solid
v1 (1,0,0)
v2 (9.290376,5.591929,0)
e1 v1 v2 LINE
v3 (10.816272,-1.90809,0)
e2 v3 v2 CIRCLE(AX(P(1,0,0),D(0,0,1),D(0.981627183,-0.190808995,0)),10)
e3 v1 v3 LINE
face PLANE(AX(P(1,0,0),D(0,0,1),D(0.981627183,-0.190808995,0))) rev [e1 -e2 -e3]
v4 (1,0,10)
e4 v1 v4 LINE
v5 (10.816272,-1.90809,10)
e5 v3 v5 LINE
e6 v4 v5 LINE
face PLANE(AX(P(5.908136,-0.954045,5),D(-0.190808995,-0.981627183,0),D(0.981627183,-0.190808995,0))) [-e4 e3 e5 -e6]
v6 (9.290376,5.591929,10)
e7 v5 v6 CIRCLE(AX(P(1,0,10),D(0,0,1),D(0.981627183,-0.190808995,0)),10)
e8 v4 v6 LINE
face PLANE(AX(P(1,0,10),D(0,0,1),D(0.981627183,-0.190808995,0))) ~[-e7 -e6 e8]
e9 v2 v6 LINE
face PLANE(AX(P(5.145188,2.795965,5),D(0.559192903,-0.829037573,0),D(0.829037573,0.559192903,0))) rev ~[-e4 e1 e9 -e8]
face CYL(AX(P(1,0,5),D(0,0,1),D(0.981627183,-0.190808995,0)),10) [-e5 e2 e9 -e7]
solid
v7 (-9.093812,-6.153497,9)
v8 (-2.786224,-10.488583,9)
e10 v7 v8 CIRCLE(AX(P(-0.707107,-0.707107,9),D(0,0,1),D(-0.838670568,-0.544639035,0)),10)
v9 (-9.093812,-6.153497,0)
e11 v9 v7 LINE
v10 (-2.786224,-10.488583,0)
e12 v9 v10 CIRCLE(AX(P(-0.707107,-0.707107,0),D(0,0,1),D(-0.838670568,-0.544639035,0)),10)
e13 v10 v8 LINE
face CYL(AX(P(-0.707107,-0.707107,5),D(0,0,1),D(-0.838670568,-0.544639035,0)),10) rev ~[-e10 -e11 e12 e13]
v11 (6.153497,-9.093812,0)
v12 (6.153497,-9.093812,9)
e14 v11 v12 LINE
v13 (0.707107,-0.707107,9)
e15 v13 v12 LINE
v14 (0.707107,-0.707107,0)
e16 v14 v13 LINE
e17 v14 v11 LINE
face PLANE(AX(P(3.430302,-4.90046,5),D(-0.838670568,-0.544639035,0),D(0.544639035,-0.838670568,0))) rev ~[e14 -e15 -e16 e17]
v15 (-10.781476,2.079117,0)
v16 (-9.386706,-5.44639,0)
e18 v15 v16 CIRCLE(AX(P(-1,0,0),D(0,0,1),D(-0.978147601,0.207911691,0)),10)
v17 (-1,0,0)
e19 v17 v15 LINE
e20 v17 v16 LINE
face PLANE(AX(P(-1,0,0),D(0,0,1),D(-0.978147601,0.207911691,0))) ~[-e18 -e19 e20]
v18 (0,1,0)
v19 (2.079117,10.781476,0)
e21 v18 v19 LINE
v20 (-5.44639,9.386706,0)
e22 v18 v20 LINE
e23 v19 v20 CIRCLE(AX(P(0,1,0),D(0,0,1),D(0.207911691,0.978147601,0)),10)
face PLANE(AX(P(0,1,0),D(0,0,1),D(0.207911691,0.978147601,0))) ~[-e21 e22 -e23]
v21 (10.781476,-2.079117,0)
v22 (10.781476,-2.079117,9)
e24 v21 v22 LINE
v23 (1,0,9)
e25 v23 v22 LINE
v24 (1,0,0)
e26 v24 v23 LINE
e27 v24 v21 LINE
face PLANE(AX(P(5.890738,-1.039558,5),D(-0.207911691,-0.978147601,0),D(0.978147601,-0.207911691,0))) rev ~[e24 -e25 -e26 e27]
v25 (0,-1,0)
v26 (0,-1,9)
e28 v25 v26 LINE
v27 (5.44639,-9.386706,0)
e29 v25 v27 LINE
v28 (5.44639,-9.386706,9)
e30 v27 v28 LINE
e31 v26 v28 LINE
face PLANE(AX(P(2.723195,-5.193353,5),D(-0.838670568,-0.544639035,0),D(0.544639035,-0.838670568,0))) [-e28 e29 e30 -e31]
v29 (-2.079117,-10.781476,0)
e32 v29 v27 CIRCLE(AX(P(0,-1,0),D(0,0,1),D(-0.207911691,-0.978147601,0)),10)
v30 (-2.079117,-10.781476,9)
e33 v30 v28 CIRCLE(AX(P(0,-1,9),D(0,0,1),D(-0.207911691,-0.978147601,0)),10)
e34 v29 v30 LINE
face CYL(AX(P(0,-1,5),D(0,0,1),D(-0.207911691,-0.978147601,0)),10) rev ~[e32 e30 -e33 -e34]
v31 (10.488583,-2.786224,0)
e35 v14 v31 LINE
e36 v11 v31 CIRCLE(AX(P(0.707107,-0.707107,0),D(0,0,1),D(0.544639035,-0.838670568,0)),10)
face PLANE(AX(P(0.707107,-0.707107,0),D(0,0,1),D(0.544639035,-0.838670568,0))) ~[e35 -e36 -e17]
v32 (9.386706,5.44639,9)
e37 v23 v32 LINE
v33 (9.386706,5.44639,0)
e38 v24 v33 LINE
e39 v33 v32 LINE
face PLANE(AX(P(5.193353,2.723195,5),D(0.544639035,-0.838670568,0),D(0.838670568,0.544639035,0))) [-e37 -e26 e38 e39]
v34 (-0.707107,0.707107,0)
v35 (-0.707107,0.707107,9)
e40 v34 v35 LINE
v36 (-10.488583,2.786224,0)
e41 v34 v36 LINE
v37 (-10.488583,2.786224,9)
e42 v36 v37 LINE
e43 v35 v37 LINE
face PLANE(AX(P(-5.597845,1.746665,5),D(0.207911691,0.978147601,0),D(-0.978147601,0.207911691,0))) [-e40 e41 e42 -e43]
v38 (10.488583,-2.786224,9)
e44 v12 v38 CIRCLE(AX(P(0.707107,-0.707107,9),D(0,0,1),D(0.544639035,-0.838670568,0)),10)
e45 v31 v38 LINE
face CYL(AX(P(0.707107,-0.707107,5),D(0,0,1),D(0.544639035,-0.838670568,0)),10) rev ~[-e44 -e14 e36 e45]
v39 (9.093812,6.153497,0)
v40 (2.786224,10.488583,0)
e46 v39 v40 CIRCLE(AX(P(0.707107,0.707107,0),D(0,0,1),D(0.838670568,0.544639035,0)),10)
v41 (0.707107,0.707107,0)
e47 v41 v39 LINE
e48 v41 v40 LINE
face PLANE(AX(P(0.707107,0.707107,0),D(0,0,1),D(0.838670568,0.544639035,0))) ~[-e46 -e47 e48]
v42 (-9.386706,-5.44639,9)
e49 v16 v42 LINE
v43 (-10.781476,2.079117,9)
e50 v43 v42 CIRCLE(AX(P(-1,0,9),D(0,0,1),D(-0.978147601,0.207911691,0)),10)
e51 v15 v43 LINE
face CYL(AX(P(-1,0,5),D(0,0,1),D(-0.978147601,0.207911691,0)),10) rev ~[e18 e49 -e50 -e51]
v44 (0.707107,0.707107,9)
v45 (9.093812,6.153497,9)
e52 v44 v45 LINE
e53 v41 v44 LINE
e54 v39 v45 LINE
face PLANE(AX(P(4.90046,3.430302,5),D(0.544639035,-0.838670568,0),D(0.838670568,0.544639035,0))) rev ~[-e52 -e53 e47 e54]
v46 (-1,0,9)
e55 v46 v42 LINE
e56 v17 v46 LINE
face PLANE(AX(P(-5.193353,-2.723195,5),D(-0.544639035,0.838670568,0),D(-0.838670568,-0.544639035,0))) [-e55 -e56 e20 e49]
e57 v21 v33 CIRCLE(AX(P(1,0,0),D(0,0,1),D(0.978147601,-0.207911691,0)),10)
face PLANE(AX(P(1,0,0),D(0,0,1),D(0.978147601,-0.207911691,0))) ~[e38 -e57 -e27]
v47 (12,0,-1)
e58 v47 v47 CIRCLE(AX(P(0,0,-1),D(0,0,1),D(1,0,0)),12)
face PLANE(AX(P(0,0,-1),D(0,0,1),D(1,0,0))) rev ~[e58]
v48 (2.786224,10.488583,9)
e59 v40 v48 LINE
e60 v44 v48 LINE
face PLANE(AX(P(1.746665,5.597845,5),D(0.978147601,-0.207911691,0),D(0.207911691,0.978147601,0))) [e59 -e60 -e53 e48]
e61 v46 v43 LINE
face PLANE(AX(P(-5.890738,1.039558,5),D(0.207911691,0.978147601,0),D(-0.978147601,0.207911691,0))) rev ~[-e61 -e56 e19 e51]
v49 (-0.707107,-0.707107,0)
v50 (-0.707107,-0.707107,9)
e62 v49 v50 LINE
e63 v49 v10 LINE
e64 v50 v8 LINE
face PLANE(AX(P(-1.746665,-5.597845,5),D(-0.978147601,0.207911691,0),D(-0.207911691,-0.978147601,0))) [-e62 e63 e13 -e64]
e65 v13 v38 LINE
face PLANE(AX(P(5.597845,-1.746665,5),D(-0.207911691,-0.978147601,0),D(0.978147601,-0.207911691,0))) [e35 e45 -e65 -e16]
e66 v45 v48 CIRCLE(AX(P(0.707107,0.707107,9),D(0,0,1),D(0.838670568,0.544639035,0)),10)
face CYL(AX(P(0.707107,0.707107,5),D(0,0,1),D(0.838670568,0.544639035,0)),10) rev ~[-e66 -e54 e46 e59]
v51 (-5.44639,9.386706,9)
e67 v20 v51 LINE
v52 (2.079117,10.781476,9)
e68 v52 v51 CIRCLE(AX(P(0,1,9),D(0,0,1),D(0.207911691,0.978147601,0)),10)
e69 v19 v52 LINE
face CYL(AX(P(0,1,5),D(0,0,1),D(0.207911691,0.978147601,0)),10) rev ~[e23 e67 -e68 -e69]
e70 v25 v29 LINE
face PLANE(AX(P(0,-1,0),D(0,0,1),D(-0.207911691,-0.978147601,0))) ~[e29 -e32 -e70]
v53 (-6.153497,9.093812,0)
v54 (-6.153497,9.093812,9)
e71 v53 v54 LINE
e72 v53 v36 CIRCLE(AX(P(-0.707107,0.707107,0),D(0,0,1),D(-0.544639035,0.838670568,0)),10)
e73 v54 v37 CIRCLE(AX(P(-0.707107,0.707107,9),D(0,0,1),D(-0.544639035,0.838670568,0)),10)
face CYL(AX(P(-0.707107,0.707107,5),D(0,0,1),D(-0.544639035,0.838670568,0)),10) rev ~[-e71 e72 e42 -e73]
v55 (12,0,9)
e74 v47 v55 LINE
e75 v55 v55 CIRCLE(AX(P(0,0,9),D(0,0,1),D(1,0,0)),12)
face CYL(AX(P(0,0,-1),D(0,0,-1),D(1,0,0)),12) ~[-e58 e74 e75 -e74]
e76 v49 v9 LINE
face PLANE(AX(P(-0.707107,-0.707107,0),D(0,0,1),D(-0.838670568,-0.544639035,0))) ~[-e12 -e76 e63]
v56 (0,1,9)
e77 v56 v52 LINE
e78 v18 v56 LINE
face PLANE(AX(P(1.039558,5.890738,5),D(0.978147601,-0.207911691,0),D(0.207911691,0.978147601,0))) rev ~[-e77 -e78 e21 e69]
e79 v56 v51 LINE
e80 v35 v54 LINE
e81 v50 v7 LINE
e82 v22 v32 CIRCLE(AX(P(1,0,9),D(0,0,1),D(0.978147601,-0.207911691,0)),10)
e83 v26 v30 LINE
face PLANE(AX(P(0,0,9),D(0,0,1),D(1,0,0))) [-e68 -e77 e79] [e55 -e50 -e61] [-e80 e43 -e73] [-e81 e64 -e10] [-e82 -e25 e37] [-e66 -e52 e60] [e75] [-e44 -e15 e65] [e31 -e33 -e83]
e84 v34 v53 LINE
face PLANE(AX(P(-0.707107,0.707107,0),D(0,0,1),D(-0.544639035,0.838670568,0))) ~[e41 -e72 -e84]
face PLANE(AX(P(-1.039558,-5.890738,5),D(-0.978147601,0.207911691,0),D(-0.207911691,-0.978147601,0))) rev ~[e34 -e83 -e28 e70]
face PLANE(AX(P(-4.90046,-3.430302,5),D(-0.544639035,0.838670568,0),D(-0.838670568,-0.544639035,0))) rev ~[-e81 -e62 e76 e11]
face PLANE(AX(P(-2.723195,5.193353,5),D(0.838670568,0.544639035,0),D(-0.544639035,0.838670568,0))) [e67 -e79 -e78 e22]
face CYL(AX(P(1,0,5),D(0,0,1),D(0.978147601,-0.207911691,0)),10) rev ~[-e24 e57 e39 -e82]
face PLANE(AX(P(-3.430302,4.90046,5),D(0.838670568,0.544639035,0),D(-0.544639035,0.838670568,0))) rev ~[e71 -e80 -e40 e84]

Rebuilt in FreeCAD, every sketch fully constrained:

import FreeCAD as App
import Part
import Sketcher
from FreeCAD import Vector
Q = App.Units.Quantity

doc = App.newDocument("Part")
params = doc.addObject("Spreadsheet::Sheet", "Params")
for row, (alias, value) in enumerate([
    ("sketch1_width", "10 mm"),
    ("revolution_angle", "45 deg"),
    ("sketch2_diameter", "24 mm"),
    ("pad1_length", "10 mm"),
    ("sketch3_width", "10 mm"),
    ("revolution2_angle", "45 deg"),
], start=1):
    params.set(f"A{row}", alias)
    params.set(f"B{row}", "=" + value)
    params.setAlias(f"B{row}", alias)

body = doc.addObject("PartDesign::Body", "Body")

# Sketch on XZ plane
sketch1 = body.newObject("Sketcher::SketchObject", "Sketch")
sketch1.AttachmentSupport = (doc.getObject("XZ_Plane"), [""])
sketch1.MapMode = "FlatFace"
sketch1.addGeometry(Part.LineSegment(Vector(0, 10, 0), Vector(0, 0, 0)), False)
sketch1.addGeometry(Part.LineSegment(Vector(0, 0, 0), Vector(10, 0, 0)), False)
sketch1.addGeometry(Part.LineSegment(Vector(10, 0, 0), Vector(10, 10, 0)), False)
sketch1.addGeometry(Part.LineSegment(Vector(10, 10, 0), Vector(0, 10, 0)), False)
sketch1.addConstraint(Sketcher.Constraint("Coincident", 0, 2, 1, 1))
sketch1.addConstraint(Sketcher.Constraint("Coincident", 1, 2, 2, 1))
sketch1.addConstraint(Sketcher.Constraint("Coincident", 2, 2, 3, 1))
sketch1.addConstraint(Sketcher.Constraint("Coincident", 3, 2, 0, 1))
sketch1.addConstraint(Sketcher.Constraint("Vertical", 0))
sketch1.addConstraint(Sketcher.Constraint("Horizontal", 1))
sketch1.addConstraint(Sketcher.Constraint("Vertical", 2))
sketch1.addConstraint(Sketcher.Constraint("Horizontal", 3))
sketch1.addConstraint(Sketcher.Constraint("Coincident", 0, 2, -1, 1))
sketch1.addConstraint(Sketcher.Constraint("Equal", 3, 0))
sketch1.addConstraint(Sketcher.Constraint("DistanceX", 1, 1, 1, 2, Q("10 mm")))
sketch1.setExpression("Constraints[10]", "Params.sketch1_width")
revolution = body.newObject("PartDesign::Revolution", "Revolution")
revolution.Profile = sketch1
revolution.ReferenceAxis = (sketch1, ["V_Axis"])
revolution.setExpression("Angle", "Params.revolution_angle")
body2 = doc.addObject("PartDesign::Body", "Body001")
doc.recompute()

body.Placement = App.Placement(Vector(1, 0, 0), App.Rotation(Vector(0, 0, 1), 348))
boolean = body2.newObject("PartDesign::Boolean", "Boolean")
boolean.Type = "Fuse"
boolean.addObjects([body])
body3 = doc.addObject("PartDesign::Body", "Body002")
body3.AllowCompound = True
doc.recompute()

body3.BaseFeature = body2
doc.recompute()

body4 = doc.addObject("PartDesign::Body", "Body003")
body4.BaseFeature = body2
body4.Placement = App.Placement(Vector(0, 0, 0), App.Rotation(Vector(0, 0, 1), 45))
boolean2 = body3.newObject("PartDesign::Boolean", "Boolean001")
boolean2.Type = "Fuse"
boolean2.addObjects([body4])
doc.recompute()

body5 = doc.addObject("PartDesign::Body", "Body004")
body5.BaseFeature = body2
body5.Placement = App.Placement(Vector(0, 0, 0), App.Rotation(Vector(0, 0, 1), 90))
boolean3 = body3.newObject("PartDesign::Boolean", "Boolean002")
boolean3.Type = "Fuse"
boolean3.addObjects([body5])
doc.recompute()

body6 = doc.addObject("PartDesign::Body", "Body005")
body6.BaseFeature = body2
body6.Placement = App.Placement(Vector(0, 0, 0), App.Rotation(Vector(0, 0, 1), 135))
boolean4 = body3.newObject("PartDesign::Boolean", "Boolean003")
boolean4.Type = "Fuse"
boolean4.addObjects([body6])
doc.recompute()

body7 = doc.addObject("PartDesign::Body", "Body006")
body7.BaseFeature = body2
body7.Placement = App.Placement(Vector(0, 0, 0), App.Rotation(Vector(0, 0, 1), 180))
boolean5 = body3.newObject("PartDesign::Boolean", "Boolean004")
boolean5.Type = "Fuse"
boolean5.addObjects([body7])
doc.recompute()

body8 = doc.addObject("PartDesign::Body", "Body007")
body8.BaseFeature = body2
body8.Placement = App.Placement(Vector(0, 0, 0), App.Rotation(Vector(0, 0, 1), 225))
boolean6 = body3.newObject("PartDesign::Boolean", "Boolean005")
boolean6.Type = "Fuse"
boolean6.addObjects([body8])
doc.recompute()

body9 = doc.addObject("PartDesign::Body", "Body008")
body9.BaseFeature = body2
body9.Placement = App.Placement(Vector(0, 0, 0), App.Rotation(Vector(0, 0, 1), 270))
boolean7 = body3.newObject("PartDesign::Boolean", "Boolean006")
boolean7.Type = "Fuse"
boolean7.addObjects([body9])
doc.recompute()

body2.Placement = App.Placement(Vector(0, 0, 0), App.Rotation(Vector(0, 0, 1), 315))
boolean8 = body3.newObject("PartDesign::Boolean", "Boolean007")
boolean8.Type = "Fuse"
boolean8.addObjects([body2])
body10 = doc.addObject("PartDesign::Body", "Body009")

# Sketch on XY plane
sketch2 = body10.newObject("Sketcher::SketchObject", "Sketch001")
sketch2.AttachmentSupport = (doc.getObject("XY_Plane009"), [""])
sketch2.MapMode = "FlatFace"
sketch2.AttachmentOffset = App.Placement(Vector(0, 0, -1), App.Rotation())
sketch2.addGeometry(Part.Circle(Vector(0, 0, 0), Vector(0, 0, 1), 12), False)
sketch2.addConstraint(Sketcher.Constraint("Coincident", 0, 3, -1, 1))
sketch2.addConstraint(Sketcher.Constraint("Diameter", 0, Q("24 mm")))
sketch2.setExpression("Constraints[1]", "Params.sketch2_diameter")
pad1 = body10.newObject("PartDesign::Pad", "Pad")
pad1.Profile = sketch2
pad1.setExpression("Length", "Params.pad1_length")
doc.recompute()

boolean9 = body10.newObject("PartDesign::Boolean", "Boolean008")
boolean9.Type = "Cut"
boolean9.addObjects([body3])
body11 = doc.addObject("PartDesign::Body", "Body010")

# Sketch on XZ plane
sketch3 = body11.newObject("Sketcher::SketchObject", "Sketch002")
sketch3.AttachmentSupport = (doc.getObject("XZ_Plane010"), [""])
sketch3.MapMode = "FlatFace"
sketch3.addGeometry(Part.LineSegment(Vector(0, 10, 0), Vector(0, 0, 0)), False)
sketch3.addGeometry(Part.LineSegment(Vector(0, 0, 0), Vector(10, 0, 0)), False)
sketch3.addGeometry(Part.LineSegment(Vector(10, 0, 0), Vector(10, 10, 0)), False)
sketch3.addGeometry(Part.LineSegment(Vector(10, 10, 0), Vector(0, 10, 0)), False)
sketch3.addConstraint(Sketcher.Constraint("Coincident", 0, 2, 1, 1))
sketch3.addConstraint(Sketcher.Constraint("Coincident", 1, 2, 2, 1))
sketch3.addConstraint(Sketcher.Constraint("Coincident", 2, 2, 3, 1))
sketch3.addConstraint(Sketcher.Constraint("Coincident", 3, 2, 0, 1))
sketch3.addConstraint(Sketcher.Constraint("Vertical", 0))
sketch3.addConstraint(Sketcher.Constraint("Horizontal", 1))
sketch3.addConstraint(Sketcher.Constraint("Vertical", 2))
sketch3.addConstraint(Sketcher.Constraint("Horizontal", 3))
sketch3.addConstraint(Sketcher.Constraint("Coincident", 0, 2, -1, 1))
sketch3.addConstraint(Sketcher.Constraint("Equal", 3, 0))
sketch3.addConstraint(Sketcher.Constraint("DistanceX", 1, 1, 1, 2, Q("10 mm")))
sketch3.setExpression("Constraints[10]", "Params.sketch3_width")
revolution2 = body11.newObject("PartDesign::Revolution", "Revolution001")
revolution2.Profile = sketch3
revolution2.ReferenceAxis = (sketch3, ["V_Axis"])
revolution2.setExpression("Angle", "Params.revolution2_angle")
body12 = doc.addObject("PartDesign::Body", "Body011")
doc.recompute()

body11.Placement = App.Placement(Vector(1, 0, 0), App.Rotation(Vector(0, 0, -1), 11))
boolean10 = body12.newObject("PartDesign::Boolean", "Boolean009")
boolean10.Type = "Fuse"
boolean10.addObjects([body11])

doc.recompute()
